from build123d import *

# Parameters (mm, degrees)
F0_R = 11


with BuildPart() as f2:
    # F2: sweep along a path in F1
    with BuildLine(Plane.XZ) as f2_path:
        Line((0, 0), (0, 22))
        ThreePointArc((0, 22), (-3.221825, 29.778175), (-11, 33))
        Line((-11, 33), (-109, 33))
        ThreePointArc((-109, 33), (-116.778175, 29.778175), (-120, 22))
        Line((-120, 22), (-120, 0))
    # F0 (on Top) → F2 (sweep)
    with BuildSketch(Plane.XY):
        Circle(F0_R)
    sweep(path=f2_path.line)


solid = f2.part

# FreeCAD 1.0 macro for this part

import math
import FreeCAD as App
import Part
import Sketcher
from FreeCAD import Vector

doc = App.newDocument("Part")
params = doc.addObject("Spreadsheet::Sheet", "Params")
for row, (alias, value) in enumerate([
    ("sketch1_diameter", "22 mm"),
    ("sketch2_radius", "10.999999 mm"),
    ("sketch2_width", "98 mm"),
    ("sketch2_height", "22 mm"),
], start=1):
    params.set(f"A{row}", alias)
    params.set(f"B{row}", "=" + value)
    params.setAlias(f"B{row}", alias)

body = doc.addObject("PartDesign::Body", "Body")

# Sketch on XY plane
sketch1 = body.newObject("Sketcher::SketchObject", "Sketch")
sketch1.AttachmentSupport = (doc.getObject("XY_Plane"), [""])
sketch1.MapMode = "FlatFace"
sketch1.addGeometry(Part.Circle(Vector(0, 0, 0), Vector(0, 0, 1), 11), False)
sketch1.addConstraint(Sketcher.Constraint("Coincident", 0, 3, -1, 1))
sketch1.addConstraint(Sketcher.Constraint("Diameter", 0, 22.0))
sketch1.setExpression("Constraints[1]", "Params.sketch1_diameter")

# Sketch on XZ plane
sketch2 = body.newObject("Sketcher::SketchObject", "Sketch001")
sketch2.AttachmentSupport = (doc.getObject("XZ_Plane"), [""])
sketch2.MapMode = "FlatFace"
sketch2.addGeometry(Part.LineSegment(Vector(0, 0, 0), Vector(0, 22, 0)), False)
sketch2.addGeometry(Part.ArcOfCircle(Part.Circle(Vector(-11, 22, 0), Vector(0, 0, 1), 11), math.radians(0), math.radians(90)), False)
sketch2.addGeometry(Part.LineSegment(Vector(-11, 33, 0), Vector(-109, 33, 0)), False)
sketch2.addGeometry(Part.ArcOfCircle(Part.Circle(Vector(-109, 22, 0), Vector(0, 0, 1), 11), math.radians(90), math.radians(180)), False)
sketch2.addGeometry(Part.LineSegment(Vector(-120, 22, 0), Vector(-120, 0, 0)), False)
sketch2.addConstraint(Sketcher.Constraint("Tangent", 0, 2, 1, 1))
sketch2.addConstraint(Sketcher.Constraint("Tangent", 1, 2, 2, 1))
sketch2.addConstraint(Sketcher.Constraint("Tangent", 2, 2, 3, 1))
sketch2.addConstraint(Sketcher.Constraint("Tangent", 3, 2, 4, 1))
sketch2.addConstraint(Sketcher.Constraint("Vertical", 0))
sketch2.addConstraint(Sketcher.Constraint("Horizontal", 2))
sketch2.addConstraint(Sketcher.Constraint("Vertical", 4))
sketch2.addConstraint(Sketcher.Constraint("Coincident", 0, 1, -1, 1))
sketch2.addConstraint(Sketcher.Constraint("Equal", 1, 3))
sketch2.addConstraint(Sketcher.Constraint("PointOnObject", 4, 2, -1))
sketch2.addConstraint(Sketcher.Constraint("Radius", 1, 10.999999))
sketch2.addConstraint(Sketcher.Constraint("DistanceX", 2, 2, 2, 1, 98.0))
sketch2.addConstraint(Sketcher.Constraint("DistanceY", 0, 1, 0, 2, 22.0))
sketch2.setExpression("Constraints[10]", "Params.sketch2_radius")
sketch2.setExpression("Constraints[11]", "Params.sketch2_width")
sketch2.setExpression("Constraints[12]", "Params.sketch2_height")
doc.recompute()

additivepipe = body.newObject("PartDesign::AdditivePipe", "AdditivePipe")
additivepipe.Profile = sketch1
additivepipe.Spine = (sketch2, ["Edge1", "Edge2", "Edge3", "Edge4", "Edge5"])

doc.recompute()
